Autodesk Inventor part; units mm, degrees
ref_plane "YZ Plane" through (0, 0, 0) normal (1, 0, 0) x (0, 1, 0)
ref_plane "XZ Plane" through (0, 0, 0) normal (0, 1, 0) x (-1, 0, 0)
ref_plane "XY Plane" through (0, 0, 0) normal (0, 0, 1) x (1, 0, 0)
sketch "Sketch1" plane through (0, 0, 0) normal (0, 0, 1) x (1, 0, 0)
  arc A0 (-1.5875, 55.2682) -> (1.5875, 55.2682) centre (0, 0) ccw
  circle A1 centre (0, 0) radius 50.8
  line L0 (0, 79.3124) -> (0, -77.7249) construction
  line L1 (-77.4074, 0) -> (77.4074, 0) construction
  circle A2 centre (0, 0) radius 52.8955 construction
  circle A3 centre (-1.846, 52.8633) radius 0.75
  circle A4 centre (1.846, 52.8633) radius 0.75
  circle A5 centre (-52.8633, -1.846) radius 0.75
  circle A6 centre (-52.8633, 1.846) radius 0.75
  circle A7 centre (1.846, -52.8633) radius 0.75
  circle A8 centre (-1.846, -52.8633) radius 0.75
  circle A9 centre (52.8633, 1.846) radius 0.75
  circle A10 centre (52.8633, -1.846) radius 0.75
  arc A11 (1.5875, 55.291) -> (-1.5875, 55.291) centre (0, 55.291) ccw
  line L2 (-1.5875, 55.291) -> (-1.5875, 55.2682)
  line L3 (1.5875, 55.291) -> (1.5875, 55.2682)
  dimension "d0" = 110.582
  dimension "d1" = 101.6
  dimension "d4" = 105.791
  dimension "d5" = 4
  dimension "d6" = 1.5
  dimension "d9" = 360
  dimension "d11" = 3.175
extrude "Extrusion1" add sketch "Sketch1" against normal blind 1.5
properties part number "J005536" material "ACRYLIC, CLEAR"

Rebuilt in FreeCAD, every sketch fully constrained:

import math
import FreeCAD as App
import Part
import Sketcher
from FreeCAD import Vector
Q = App.Units.Quantity

doc = App.newDocument("Part")
body = doc.addObject("PartDesign::Body", "Body")

sketch1 = body.newObject("Sketcher::SketchObject", "Sketch")
sketch1.AttachmentSupport = (doc.getObject("XY_Plane"), [""])
sketch1.MapMode = "FlatFace"
sketch1.addGeometry([
    Part.LineSegment(Vector(-1.587, 55.291, 0), Vector(-1.587, 55.268, 0)),
    Part.ArcOfCircle(Part.Circle(Vector(0, 0, 0), Vector(0, 0, 1), 55.291), math.radians(92), math.radians(448)),
    Part.LineSegment(Vector(1.587, 55.268, 0), Vector(1.587, 55.291, 0)),
    Part.ArcOfCircle(Part.Circle(Vector(0, 55.291, 0), Vector(0, 0, 1), 1.587), math.radians(0), math.radians(180)),
    Part.Circle(Vector(-1.846, -52.863, 0), Vector(0, 0, 1), 0.75),
    Part.Circle(Vector(-52.863, -1.846, 0), Vector(0, 0, 1), 0.75),
    Part.Circle(Vector(1.846, -52.863, 0), Vector(0, 0, 1), 0.75),
    Part.Circle(Vector(0, 0, 0), Vector(0, 0, 1), 50.8),
    Part.Circle(Vector(52.863, -1.846, 0), Vector(0, 0, 1), 0.75),
    Part.Circle(Vector(-52.863, 1.846, 0), Vector(0, 0, 1), 0.75),
    Part.Circle(Vector(-1.846, 52.863, 0), Vector(0, 0, 1), 0.75),
    Part.Circle(Vector(52.863, 1.846, 0), Vector(0, 0, 1), 0.75),
    Part.Circle(Vector(1.846, 52.863, 0), Vector(0, 0, 1), 0.75),
], False)
sketch1.addConstraint([
    Sketcher.Constraint("Coincident", 0, 2, 1, 1),
    Sketcher.Constraint("Coincident", 1, 2, 2, 1),
    Sketcher.Constraint("Tangent", 2, 2, 3, 1),
    Sketcher.Constraint("Tangent", 3, 2, 0, 1),
    Sketcher.Constraint("Vertical", 0),
    Sketcher.Constraint("Vertical", 2),
    Sketcher.Constraint("Coincident", 1, 3, -1, 1),
    Sketcher.Constraint("Coincident", 7, 3, -1, 1),
    Sketcher.Constraint("Equal", 4, 5),
    Sketcher.Constraint("Equal", 5, 6),
    Sketcher.Constraint("Equal", 6, 8),
    Sketcher.Constraint("Equal", 8, 9),
    Sketcher.Constraint("Equal", 9, 10),
    Sketcher.Constraint("Equal", 10, 11),
    Sketcher.Constraint("Equal", 11, 12),
    Sketcher.Constraint("Symmetric", 8, 3, 9, 3, -1, 1),
    Sketcher.Constraint("Symmetric", 6, 3, 10, 3, -1, 1),
    Sketcher.Constraint("Symmetric", 5, 3, 11, 3, -1, 1),
    Sketcher.Constraint("Symmetric", 4, 3, 12, 3, -1, 1),
    Sketcher.Constraint("Symmetric", 4, 3, 6, 3, -2),
    Sketcher.Constraint("Symmetric", 5, 3, 8, 3, -2),
    Sketcher.Constraint("PointOnObject", 3, 3, -2),
    Sketcher.Constraint("Diameter", 7, Q("4 in")),
    Sketcher.Constraint("Radius", 3, Q("0.0625 in")),
    Sketcher.Constraint("Radius", 1, Q("2.1768 in")),
    Sketcher.Constraint("Diameter", 4, 1.5),
    Sketcher.Constraint("DistanceY", 0, 2, 0, 1, Q("0.0009 in")),
    Sketcher.Constraint("DistanceY", 5, 3, 3, 3, Q("2.2495 in")),
    Sketcher.Constraint("DistanceX", 5, 3, 6, 3, Q("2.1539 in")),
    Sketcher.Constraint("DistanceY", 4, 3, 9, 3, Q("2.1539 in")),
    Sketcher.Constraint("DistanceX", 4, 3, -1, 1, 1.846),
])
pad1 = body.newObject("PartDesign::Pad", "Pad")
pad1.Profile = sketch1
pad1.Length = 1.5
pad1.Reversed = True

doc.recompute()
